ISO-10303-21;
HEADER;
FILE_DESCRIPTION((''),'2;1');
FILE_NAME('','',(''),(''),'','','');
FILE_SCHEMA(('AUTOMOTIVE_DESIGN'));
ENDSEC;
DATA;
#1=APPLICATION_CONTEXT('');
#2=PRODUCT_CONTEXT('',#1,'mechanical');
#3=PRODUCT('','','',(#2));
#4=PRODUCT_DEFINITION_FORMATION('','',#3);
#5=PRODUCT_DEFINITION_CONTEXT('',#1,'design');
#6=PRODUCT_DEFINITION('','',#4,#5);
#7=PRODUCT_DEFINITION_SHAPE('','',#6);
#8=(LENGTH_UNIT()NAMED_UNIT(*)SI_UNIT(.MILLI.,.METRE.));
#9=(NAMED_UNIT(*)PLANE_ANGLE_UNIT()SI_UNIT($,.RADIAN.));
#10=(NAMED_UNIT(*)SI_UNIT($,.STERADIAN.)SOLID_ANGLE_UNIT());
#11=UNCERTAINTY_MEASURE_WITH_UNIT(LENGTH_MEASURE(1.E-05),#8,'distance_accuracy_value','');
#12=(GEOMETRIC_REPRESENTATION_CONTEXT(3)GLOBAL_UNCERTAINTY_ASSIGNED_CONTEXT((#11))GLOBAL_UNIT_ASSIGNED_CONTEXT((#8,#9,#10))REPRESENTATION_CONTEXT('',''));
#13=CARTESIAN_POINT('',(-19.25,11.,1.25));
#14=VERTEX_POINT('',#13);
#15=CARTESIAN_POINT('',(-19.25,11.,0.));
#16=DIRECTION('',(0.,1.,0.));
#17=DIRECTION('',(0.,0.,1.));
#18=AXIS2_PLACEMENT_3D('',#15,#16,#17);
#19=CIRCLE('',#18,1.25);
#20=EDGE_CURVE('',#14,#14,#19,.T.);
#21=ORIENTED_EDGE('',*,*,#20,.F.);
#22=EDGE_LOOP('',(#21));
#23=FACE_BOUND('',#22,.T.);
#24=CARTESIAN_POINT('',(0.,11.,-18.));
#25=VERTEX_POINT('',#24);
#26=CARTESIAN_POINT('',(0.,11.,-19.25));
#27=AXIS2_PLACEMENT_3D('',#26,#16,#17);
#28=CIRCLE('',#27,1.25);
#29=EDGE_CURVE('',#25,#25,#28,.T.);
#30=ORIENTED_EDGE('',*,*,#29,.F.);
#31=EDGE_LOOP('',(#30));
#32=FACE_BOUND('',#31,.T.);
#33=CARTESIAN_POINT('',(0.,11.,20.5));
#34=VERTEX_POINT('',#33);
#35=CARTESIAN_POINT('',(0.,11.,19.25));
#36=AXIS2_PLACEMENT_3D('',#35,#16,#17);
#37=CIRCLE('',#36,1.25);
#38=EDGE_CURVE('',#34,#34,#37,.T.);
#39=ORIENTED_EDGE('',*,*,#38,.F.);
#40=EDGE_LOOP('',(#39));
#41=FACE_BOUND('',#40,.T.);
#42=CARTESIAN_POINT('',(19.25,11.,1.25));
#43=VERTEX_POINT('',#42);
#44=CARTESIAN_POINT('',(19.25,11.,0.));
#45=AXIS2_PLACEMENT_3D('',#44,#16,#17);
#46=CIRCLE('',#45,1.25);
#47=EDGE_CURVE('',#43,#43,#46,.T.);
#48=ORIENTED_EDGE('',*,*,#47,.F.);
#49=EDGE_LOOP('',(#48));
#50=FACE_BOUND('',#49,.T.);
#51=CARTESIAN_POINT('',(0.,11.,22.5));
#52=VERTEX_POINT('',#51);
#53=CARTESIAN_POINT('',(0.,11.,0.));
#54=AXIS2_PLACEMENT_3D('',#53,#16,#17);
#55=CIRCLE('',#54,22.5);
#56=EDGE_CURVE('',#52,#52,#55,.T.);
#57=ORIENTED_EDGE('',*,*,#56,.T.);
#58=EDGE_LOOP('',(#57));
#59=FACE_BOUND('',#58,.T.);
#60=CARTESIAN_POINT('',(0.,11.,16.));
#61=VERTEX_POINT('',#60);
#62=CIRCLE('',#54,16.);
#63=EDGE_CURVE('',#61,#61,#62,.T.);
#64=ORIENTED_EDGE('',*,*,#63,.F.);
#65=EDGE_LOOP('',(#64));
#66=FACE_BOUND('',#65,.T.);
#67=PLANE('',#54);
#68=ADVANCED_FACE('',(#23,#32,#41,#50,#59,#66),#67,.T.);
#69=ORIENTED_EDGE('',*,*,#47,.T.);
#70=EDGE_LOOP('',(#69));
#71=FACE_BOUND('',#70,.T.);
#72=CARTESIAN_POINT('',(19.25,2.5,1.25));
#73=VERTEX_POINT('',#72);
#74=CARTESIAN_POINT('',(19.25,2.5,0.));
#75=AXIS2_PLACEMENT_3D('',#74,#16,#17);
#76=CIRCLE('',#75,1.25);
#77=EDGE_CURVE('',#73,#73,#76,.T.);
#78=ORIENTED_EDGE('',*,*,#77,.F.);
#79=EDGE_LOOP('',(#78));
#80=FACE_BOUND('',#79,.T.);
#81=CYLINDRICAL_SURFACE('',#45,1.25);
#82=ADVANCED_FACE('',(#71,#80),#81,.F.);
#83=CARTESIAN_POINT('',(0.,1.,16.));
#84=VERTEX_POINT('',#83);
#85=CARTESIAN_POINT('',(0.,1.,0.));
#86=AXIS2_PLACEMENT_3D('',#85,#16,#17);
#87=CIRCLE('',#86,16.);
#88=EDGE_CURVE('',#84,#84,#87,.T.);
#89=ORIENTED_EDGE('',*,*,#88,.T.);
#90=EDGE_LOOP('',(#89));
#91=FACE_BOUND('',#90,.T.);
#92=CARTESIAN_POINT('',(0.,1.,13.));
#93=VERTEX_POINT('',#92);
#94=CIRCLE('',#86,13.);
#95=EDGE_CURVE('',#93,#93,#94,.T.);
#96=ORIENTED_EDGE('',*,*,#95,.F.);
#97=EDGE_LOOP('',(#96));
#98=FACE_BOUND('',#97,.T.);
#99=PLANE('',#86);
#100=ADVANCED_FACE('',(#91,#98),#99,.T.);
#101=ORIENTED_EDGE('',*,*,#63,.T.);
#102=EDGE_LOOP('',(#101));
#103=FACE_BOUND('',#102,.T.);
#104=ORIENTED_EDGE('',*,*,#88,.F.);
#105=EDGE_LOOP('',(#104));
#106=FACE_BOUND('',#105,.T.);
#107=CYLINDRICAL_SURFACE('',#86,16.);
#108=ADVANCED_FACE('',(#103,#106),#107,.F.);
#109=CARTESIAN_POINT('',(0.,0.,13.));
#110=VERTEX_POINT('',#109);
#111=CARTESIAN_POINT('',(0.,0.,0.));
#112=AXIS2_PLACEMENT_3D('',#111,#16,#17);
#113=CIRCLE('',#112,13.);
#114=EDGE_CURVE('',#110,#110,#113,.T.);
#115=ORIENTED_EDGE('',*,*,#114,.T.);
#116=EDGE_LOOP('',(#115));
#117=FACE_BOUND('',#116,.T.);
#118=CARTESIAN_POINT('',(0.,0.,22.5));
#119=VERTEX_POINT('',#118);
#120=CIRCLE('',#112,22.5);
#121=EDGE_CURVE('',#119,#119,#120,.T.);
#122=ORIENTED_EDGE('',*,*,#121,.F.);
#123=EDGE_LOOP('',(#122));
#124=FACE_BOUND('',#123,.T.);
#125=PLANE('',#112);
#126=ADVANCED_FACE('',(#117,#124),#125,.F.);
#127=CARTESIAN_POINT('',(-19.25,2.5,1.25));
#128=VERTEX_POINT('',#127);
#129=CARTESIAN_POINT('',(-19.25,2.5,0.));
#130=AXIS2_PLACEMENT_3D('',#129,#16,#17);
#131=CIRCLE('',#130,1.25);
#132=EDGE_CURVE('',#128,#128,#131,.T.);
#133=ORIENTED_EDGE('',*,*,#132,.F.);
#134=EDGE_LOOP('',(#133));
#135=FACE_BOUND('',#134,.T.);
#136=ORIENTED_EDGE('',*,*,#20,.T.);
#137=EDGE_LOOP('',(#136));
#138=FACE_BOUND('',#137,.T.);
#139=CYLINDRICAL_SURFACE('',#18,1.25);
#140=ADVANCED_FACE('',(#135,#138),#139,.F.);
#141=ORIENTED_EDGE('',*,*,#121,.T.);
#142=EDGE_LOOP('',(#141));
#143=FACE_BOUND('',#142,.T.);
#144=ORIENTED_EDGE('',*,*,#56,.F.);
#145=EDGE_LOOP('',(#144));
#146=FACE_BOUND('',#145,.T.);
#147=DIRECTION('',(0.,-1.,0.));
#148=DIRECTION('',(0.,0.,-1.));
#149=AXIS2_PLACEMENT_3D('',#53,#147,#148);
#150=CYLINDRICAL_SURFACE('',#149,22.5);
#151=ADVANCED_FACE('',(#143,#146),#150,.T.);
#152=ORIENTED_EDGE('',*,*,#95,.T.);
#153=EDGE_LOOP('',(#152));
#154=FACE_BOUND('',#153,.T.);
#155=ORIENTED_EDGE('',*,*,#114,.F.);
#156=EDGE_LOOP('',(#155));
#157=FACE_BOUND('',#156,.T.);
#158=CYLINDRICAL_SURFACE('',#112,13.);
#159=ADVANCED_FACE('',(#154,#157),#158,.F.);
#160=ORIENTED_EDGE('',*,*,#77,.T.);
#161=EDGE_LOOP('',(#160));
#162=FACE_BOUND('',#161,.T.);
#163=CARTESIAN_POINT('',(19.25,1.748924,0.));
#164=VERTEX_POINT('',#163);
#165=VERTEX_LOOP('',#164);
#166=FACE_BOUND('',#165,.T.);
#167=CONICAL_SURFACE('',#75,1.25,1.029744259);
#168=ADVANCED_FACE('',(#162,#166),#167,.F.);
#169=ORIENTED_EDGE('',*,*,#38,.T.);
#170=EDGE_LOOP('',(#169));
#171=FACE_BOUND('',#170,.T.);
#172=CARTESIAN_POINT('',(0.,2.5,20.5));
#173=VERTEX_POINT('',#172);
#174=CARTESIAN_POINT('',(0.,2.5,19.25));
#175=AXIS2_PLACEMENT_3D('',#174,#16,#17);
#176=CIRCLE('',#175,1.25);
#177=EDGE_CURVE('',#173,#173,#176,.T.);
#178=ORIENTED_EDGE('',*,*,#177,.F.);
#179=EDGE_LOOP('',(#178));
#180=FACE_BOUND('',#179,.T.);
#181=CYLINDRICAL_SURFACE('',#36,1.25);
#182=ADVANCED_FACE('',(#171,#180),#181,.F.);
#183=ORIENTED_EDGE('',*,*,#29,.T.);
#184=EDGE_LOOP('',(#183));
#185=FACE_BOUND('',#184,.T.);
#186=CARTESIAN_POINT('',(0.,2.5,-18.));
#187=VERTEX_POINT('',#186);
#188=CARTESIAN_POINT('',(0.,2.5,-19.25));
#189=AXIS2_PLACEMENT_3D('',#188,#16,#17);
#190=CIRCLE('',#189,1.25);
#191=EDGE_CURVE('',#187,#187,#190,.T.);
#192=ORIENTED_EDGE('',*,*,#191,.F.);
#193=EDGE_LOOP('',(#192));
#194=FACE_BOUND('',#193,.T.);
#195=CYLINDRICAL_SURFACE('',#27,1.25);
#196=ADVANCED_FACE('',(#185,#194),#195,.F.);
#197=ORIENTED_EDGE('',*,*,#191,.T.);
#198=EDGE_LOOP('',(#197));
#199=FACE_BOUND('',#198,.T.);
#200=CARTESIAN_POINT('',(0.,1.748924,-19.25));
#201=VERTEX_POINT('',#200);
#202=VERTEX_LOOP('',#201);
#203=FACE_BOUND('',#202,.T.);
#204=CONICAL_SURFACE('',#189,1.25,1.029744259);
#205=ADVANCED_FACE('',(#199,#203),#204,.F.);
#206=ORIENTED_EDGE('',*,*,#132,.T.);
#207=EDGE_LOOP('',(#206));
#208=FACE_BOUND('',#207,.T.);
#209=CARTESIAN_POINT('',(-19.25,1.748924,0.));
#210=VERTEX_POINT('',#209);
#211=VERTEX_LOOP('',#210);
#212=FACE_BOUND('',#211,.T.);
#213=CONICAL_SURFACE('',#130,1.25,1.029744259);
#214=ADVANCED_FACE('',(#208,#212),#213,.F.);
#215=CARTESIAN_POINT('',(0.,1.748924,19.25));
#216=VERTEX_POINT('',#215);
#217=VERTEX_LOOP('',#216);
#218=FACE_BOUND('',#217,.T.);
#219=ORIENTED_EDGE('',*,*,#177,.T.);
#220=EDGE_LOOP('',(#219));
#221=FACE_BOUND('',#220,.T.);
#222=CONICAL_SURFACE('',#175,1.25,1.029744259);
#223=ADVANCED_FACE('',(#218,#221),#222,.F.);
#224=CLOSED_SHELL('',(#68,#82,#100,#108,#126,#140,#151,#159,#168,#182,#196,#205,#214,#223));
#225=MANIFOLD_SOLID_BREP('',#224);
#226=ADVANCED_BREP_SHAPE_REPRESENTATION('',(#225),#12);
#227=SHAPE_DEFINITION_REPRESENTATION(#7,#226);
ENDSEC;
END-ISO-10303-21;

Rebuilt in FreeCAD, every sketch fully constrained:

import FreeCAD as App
import Part
import Sketcher

V = App.Vector

doc = App.newDocument("Part")
body = doc.addObject("PartDesign::Body", "Body")

# Sketch on XZ plane
sketch1 = body.newObject("Sketcher::SketchObject", "Sketch")
sketch1.AttachmentSupport = (doc.getObject("XZ_Plane"), [""])
sketch1.MapMode = "FlatFace"
sketch1.addGeometry(Part.Circle(V(0, 0, 0), V(0, 0, 1), 22.5), False)
sketch1.addConstraint([
    Sketcher.Constraint("Coincident", 0, 3, -1, 1),
    Sketcher.Constraint("Diameter", 0, 45.0),
])
pad1 = body.newObject("PartDesign::Pad", "Pad")
pad1.Profile = sketch1
pad1.Length = 11
pad1.Reversed = True

# Sketch on XZ plane
sketch2 = body.newObject("Sketcher::SketchObject", "Sketch001")
sketch2.AttachmentSupport = (doc.getObject("XZ_Plane"), [""])
sketch2.MapMode = "FlatFace"
sketch2.AttachmentOffset = App.Placement(V(0, 0, -11), App.Rotation())
sketch2.addGeometry(Part.Circle(V(0, 0, 0), V(0, 0, 1), 16), False)
sketch2.addConstraint([
    Sketcher.Constraint("Coincident", 0, 3, -1, 1),
    Sketcher.Constraint("Diameter", 0, 32.0),
])
pocket1 = body.newObject("PartDesign::Pocket", "Pocket")
pocket1.Profile = sketch2
pocket1.Length = 10
pocket1.Reversed = True

# Sketch on XZ plane
sketch3 = body.newObject("Sketcher::SketchObject", "Sketch002")
sketch3.AttachmentSupport = (doc.getObject("XZ_Plane"), [""])
sketch3.MapMode = "FlatFace"
sketch3.AttachmentOffset = App.Placement(V(0, 0, -1), App.Rotation())
sketch3.addGeometry(Part.Circle(V(0, 0, 0), V(0, 0, 1), 13), False)
sketch3.addConstraint([
    Sketcher.Constraint("Coincident", 0, 3, -1, 1),
    Sketcher.Constraint("Diameter", 0, 26.0),
])
pocket2 = body.newObject("PartDesign::Pocket", "Pocket001")
pocket2.Profile = sketch3
pocket2.Type = "ThroughAll"
pocket2.Reversed = True

# Sketch on XZ plane
sketch4 = body.newObject("Sketcher::SketchObject", "Sketch003")
sketch4.AttachmentSupport = (doc.getObject("XZ_Plane"), [""])
sketch4.MapMode = "FlatFace"
sketch4.AttachmentOffset = App.Placement(V(0, 0, -11), App.Rotation())
sketch4.addGeometry([
    Part.Circle(V(-19.25, 0, 0), V(0, 0, 1), 1.25),
    Part.Circle(V(0, 19.25, 0), V(0, 0, 1), 1.25),
    Part.Circle(V(19.25, 0, 0), V(0, 0, 1), 1.25),
    Part.Circle(V(0, -19.25, 0), V(0, 0, 1), 1.25),
], False)
sketch4.addConstraint([
    Sketcher.Constraint("Equal", 0, 1),
    Sketcher.Constraint("Equal", 1, 2),
    Sketcher.Constraint("Equal", 2, 3),
    Sketcher.Constraint("Symmetric", 0, 3, 2, 3, -1, 1),
    Sketcher.Constraint("Symmetric", 1, 3, 3, 3, -1, 1),
    Sketcher.Constraint("PointOnObject", 0, 3, -1),
    Sketcher.Constraint("PointOnObject", 1, 3, -2),
    Sketcher.Constraint("Diameter", 0, 2.5),
    Sketcher.Constraint("DistanceX", 0, 3, 2, 3, 38.5),
    Sketcher.Constraint("DistanceY", 3, 3, 1, 3, 38.5),
])
doc.recompute()
hole = body.newObject("PartDesign::Hole", "Hole")
hole.Profile = sketch4
hole.ThreadType = "None"
hole.Diameter = 2.5
hole.DepthType = "Dimension"
hole.Depth = 8.5
hole.DrillPoint = "Angled"
hole.DrillPointAngle = 118
hole.Reversed = True

doc.recompute()
